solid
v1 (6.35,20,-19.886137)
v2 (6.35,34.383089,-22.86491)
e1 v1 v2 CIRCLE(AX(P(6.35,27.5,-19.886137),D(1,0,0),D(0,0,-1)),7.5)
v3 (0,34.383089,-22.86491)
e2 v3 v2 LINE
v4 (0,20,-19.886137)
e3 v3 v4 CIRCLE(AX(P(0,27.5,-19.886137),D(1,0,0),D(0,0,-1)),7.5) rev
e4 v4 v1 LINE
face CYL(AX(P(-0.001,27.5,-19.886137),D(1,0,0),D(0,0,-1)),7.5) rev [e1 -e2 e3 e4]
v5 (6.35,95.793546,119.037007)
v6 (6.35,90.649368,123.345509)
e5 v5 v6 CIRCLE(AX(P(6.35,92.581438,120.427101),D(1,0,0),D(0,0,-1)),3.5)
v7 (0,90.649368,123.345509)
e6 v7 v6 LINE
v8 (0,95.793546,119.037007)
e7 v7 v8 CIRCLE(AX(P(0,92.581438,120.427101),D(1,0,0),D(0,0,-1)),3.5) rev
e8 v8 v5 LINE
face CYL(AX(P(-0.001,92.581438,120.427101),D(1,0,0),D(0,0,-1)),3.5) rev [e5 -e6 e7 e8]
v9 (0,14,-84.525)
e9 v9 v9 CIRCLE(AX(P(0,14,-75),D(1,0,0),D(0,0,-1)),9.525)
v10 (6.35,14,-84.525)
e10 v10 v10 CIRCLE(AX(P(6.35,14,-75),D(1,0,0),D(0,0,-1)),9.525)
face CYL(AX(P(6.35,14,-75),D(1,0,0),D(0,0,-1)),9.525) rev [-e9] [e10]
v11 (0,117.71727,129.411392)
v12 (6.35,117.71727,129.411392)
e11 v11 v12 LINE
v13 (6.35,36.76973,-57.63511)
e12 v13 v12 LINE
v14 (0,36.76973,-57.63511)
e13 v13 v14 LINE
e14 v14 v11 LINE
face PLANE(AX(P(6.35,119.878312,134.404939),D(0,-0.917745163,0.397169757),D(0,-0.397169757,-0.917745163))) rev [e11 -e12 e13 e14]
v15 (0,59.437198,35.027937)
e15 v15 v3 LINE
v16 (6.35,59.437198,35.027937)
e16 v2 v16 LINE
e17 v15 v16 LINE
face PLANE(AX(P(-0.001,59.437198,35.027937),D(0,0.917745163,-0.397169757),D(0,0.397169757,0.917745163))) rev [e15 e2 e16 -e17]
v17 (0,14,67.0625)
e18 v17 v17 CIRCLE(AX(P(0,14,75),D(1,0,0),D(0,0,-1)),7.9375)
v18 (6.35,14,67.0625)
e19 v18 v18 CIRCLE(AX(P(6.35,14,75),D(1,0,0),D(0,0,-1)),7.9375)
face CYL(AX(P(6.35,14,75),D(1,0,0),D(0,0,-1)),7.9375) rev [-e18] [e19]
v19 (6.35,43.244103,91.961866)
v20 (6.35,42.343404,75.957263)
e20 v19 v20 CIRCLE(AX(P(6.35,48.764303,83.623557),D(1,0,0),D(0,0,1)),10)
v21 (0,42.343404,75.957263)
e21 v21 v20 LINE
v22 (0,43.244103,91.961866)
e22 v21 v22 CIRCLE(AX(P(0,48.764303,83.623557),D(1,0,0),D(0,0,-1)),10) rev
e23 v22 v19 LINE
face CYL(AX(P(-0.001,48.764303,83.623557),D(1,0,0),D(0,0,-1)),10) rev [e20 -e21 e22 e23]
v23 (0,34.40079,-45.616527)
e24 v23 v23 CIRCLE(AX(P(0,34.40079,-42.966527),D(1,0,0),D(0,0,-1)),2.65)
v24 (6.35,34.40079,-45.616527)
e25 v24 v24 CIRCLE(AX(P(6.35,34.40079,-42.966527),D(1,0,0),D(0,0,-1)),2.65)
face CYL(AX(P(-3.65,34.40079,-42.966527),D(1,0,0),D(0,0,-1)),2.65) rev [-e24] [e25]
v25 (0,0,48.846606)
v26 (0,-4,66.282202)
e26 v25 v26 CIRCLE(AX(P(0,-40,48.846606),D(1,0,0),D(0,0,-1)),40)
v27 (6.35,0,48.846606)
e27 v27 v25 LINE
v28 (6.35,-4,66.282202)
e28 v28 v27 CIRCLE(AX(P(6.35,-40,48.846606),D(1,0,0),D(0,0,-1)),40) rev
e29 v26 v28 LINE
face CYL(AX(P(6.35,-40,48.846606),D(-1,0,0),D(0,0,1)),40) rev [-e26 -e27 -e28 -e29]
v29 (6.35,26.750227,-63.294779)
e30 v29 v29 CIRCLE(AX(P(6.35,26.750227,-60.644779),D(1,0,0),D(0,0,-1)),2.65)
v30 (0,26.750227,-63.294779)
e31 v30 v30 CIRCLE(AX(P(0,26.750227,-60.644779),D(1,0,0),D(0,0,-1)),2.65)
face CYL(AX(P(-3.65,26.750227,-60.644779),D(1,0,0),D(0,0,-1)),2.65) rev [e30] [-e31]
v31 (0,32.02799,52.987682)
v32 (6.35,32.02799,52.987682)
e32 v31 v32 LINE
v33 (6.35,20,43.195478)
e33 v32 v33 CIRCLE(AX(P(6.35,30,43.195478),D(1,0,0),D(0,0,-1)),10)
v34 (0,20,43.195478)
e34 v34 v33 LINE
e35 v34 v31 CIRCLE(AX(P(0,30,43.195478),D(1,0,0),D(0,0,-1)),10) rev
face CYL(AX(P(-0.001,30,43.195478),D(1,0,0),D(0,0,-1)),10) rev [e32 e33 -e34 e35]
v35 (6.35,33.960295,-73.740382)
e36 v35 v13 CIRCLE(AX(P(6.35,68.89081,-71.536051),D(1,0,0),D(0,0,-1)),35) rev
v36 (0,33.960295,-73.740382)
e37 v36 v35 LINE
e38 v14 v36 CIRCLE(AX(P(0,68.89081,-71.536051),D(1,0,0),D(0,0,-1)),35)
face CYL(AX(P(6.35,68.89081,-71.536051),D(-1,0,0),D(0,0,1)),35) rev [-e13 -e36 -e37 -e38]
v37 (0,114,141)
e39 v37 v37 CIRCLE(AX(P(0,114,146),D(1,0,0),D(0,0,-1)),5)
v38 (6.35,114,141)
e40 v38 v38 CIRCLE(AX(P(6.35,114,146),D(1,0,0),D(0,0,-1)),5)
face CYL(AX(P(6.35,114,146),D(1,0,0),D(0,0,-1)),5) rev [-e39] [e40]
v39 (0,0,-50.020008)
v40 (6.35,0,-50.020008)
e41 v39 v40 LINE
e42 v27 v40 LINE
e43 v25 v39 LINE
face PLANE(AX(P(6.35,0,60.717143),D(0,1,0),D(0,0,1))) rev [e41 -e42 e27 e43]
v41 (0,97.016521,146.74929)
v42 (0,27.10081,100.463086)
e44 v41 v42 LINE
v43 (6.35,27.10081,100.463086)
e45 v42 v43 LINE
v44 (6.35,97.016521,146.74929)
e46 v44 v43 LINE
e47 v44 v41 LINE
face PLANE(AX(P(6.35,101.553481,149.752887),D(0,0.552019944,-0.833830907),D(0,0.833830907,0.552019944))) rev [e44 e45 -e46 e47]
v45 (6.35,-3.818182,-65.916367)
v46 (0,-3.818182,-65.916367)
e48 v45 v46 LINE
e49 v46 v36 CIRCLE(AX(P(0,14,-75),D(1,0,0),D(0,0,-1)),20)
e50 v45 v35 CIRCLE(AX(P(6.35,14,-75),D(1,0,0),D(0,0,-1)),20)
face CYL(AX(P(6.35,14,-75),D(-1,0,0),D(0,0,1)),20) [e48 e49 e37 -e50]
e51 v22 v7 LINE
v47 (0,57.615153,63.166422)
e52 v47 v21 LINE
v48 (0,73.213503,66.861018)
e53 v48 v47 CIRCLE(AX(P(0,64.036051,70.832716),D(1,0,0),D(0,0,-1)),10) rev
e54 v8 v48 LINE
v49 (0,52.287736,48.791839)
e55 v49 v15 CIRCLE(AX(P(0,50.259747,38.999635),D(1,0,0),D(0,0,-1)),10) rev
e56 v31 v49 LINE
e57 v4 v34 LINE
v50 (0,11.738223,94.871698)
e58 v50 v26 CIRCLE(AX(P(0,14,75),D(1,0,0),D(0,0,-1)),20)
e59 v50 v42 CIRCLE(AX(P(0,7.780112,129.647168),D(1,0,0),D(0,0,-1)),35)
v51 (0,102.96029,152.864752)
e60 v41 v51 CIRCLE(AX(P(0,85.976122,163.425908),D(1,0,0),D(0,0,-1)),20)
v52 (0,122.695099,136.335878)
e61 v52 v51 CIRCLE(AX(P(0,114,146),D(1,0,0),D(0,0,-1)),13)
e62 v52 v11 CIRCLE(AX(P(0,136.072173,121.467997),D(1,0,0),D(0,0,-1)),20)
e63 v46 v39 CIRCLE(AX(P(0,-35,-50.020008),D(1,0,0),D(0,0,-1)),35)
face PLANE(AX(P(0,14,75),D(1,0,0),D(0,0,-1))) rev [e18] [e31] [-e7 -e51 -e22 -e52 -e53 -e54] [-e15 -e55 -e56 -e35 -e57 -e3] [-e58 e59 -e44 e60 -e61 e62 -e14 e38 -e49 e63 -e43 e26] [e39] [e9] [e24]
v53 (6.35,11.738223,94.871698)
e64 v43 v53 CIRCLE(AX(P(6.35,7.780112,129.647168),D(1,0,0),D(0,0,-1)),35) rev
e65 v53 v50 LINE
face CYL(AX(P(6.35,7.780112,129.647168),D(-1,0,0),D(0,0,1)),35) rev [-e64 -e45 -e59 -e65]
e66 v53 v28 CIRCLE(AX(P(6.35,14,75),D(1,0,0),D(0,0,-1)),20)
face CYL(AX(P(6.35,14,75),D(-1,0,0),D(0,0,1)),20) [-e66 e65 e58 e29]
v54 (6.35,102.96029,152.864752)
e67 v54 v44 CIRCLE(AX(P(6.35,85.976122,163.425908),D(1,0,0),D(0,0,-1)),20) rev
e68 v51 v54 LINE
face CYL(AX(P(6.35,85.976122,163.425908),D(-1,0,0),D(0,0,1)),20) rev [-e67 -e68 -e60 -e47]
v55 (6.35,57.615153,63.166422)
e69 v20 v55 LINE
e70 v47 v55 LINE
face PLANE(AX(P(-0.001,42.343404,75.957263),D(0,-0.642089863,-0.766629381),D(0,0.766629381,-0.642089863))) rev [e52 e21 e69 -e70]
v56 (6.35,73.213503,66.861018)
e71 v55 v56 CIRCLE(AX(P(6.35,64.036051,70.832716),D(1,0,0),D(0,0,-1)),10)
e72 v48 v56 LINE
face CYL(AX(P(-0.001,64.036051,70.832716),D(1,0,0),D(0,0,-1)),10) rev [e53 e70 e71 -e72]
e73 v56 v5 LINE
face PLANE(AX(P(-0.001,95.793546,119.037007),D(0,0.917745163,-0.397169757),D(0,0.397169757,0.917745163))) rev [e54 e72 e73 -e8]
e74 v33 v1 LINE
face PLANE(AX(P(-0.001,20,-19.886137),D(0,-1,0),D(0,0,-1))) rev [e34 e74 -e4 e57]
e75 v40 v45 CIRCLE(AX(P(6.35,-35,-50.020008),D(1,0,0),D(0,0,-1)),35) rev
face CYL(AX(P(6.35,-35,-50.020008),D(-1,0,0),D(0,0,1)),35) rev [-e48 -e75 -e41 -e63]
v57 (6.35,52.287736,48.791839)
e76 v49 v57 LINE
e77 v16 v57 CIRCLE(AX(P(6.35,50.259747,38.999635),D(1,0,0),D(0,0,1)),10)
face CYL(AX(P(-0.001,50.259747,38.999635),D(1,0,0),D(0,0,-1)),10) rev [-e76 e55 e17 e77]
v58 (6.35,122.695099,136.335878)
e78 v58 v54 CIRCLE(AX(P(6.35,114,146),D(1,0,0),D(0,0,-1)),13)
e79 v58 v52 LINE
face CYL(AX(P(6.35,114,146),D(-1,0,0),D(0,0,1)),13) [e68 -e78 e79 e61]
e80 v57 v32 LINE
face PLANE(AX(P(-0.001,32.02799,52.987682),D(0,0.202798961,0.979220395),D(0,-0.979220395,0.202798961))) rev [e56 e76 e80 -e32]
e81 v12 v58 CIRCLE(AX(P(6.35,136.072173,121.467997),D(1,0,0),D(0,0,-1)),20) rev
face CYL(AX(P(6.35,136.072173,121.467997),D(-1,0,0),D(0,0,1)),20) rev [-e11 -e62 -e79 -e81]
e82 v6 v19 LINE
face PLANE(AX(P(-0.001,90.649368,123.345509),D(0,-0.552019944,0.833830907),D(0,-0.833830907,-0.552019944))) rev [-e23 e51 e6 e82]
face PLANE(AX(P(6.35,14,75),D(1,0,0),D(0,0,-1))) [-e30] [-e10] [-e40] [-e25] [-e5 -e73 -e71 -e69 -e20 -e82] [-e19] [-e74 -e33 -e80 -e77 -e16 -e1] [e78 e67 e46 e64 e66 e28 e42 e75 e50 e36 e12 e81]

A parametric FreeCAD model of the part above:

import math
import FreeCAD as App
import Part
import Sketcher
from FreeCAD import Vector
Q = App.Units.Quantity


def edges_at(feature, points):
    """Names of the edges that pass closest to the given points."""
    edges = feature.Shape.Edges
    near = lambda p: min(range(len(edges)), key=lambda i: edges[i].distToShape(Part.Vertex(*p))[0])
    return sorted({f"Edge{near(p) + 1}" for p in points})

doc = App.newDocument("Part")
body = doc.addObject("PartDesign::Body", "Body")

# Sketch on YZ plane
sketch1 = body.newObject("Sketcher::SketchObject", "Sketch")
sketch1.AttachmentSupport = (doc.getObject("YZ_Plane"), [""])
sketch1.MapMode = "FlatFace"
sketch1.addGeometry(Part.LineSegment(Vector(0, 60.717143, 0), Vector(0, -60.717143, 0)), False)
sketch1.addGeometry(Part.ArcOfCircle(Part.Circle(Vector(14, -75, 0), Vector(0, 0, 1), 20), math.radians(134.427004), math.radians(382.171631)), False)
sketch1.addGeometry(Part.LineSegment(Vector(32.521151, -67.452354, 0), Vector(119.878312, 134.404939, 0)), False)
sketch1.addGeometry(Part.ArcOfCircle(Part.Circle(Vector(114, 146, 0), Vector(0, 0, 1), 13), math.radians(-63.116502), math.radians(163.220837)), False)
sketch1.addGeometry(Part.LineSegment(Vector(101.553481, 149.752887, 0), Vector(18.181208, 94.558055, 0)), False)
sketch1.addGeometry(Part.ArcOfCircle(Part.Circle(Vector(14, 75, 0), Vector(0, 0, 1), 20), math.radians(77.932704), math.radians(225.572996)), False)
sketch1.addConstraint(Sketcher.Constraint("Coincident", 0, 2, 1, 1))
sketch1.addConstraint(Sketcher.Constraint("Coincident", 1, 2, 2, 1))
sketch1.addConstraint(Sketcher.Constraint("Coincident", 2, 2, 3, 1))
sketch1.addConstraint(Sketcher.Constraint("Coincident", 3, 2, 4, 1))
sketch1.addConstraint(Sketcher.Constraint("Coincident", 4, 2, 5, 1))
sketch1.addConstraint(Sketcher.Constraint("Coincident", 5, 2, 0, 1))
sketch1.addConstraint(Sketcher.Constraint("Vertical", 0))
sketch1.addConstraint(Sketcher.Constraint("Equal", 1, 5))
sketch1.addConstraint(Sketcher.Constraint("Symmetric", 0, 2, 5, 2, -1, 1))
sketch1.addConstraint(Sketcher.Constraint("Vertical", 1, 3, 5, 3))
sketch1.addConstraint(Sketcher.Constraint("Radius", 1, Q("20 mm")))
sketch1.addConstraint(Sketcher.Constraint("Radius", 3, Q("13 mm")))
sketch1.addConstraint(Sketcher.Constraint("DistanceX", -1, 1, 1, 3, Q("14 mm")))
sketch1.addConstraint(Sketcher.Constraint("DistanceY", 1, 3, -1, 1, Q("75 mm")))
sketch1.addConstraint(Sketcher.Constraint("DistanceX", -1, 1, 3, 3, Q("114 mm")))
sketch1.addConstraint(Sketcher.Constraint("DistanceY", -1, 1, 3, 3, Q("146 mm")))
sketch1.addConstraint(Sketcher.Constraint("DistanceX", -1, 1, 1, 2, Q("32.521151 mm")))
sketch1.addConstraint(Sketcher.Constraint("DistanceX", -1, 1, 2, 2, Q("119.878312 mm")))
sketch1.addConstraint(Sketcher.Constraint("DistanceX", -1, 1, 3, 2, Q("101.553481 mm")))
sketch1.addConstraint(Sketcher.Constraint("DistanceX", -1, 1, 4, 2, Q("18.181208 mm")))
pad1 = body.newObject("PartDesign::Pad", "Pad")
pad1.Profile = sketch1
pad1.Length = 6.35

# Sketch on YZ plane
sketch2 = body.newObject("Sketcher::SketchObject", "Sketch001")
sketch2.AttachmentSupport = (doc.getObject("YZ_Plane"), [""])
sketch2.MapMode = "FlatFace"
sketch2.AttachmentOffset = App.Placement(Vector(0, 0, 6.35), App.Rotation())
sketch2.addGeometry(Part.Circle(Vector(14, -75, 0), Vector(0, 0, 1), 9.525), False)
sketch2.addConstraint(Sketcher.Constraint("Diameter", 0, Q("19.05 mm")))
sketch2.addConstraint(Sketcher.Constraint("DistanceX", -1, 1, 0, 3, Q("14 mm")))
sketch2.addConstraint(Sketcher.Constraint("DistanceY", 0, 3, -1, 1, Q("75 mm")))
doc.recompute()
hole = body.newObject("PartDesign::Hole", "Hole")
hole.Profile = sketch2
hole.ThreadType = "None"
hole.Diameter = 19.05
hole.DepthType = "ThroughAll"

# Sketch on YZ plane
sketch3 = body.newObject("Sketcher::SketchObject", "Sketch002")
sketch3.AttachmentSupport = (doc.getObject("YZ_Plane"), [""])
sketch3.MapMode = "FlatFace"
sketch3.AttachmentOffset = App.Placement(Vector(0, 0, 6.35), App.Rotation())
sketch3.addGeometry(Part.Circle(Vector(114, 146, 0), Vector(0, 0, 1), 5), False)
sketch3.addConstraint(Sketcher.Constraint("Diameter", 0, Q("10 mm")))
sketch3.addConstraint(Sketcher.Constraint("DistanceX", -1, 1, 0, 3, Q("114 mm")))
sketch3.addConstraint(Sketcher.Constraint("DistanceY", -1, 1, 0, 3, Q("146 mm")))
doc.recompute()
hole2 = body.newObject("PartDesign::Hole", "Hole001")
hole2.Profile = sketch3
hole2.ThreadType = "None"
hole2.Diameter = 10
hole2.DepthType = "ThroughAll"

# Sketch on YZ plane
sketch4 = body.newObject("Sketcher::SketchObject", "Sketch003")
sketch4.AttachmentSupport = (doc.getObject("YZ_Plane"), [""])
sketch4.MapMode = "FlatFace"
sketch4.AttachmentOffset = App.Placement(Vector(0, 0, 6.35), App.Rotation())
sketch4.addGeometry(Part.Circle(Vector(14, 75, 0), Vector(0, 0, 1), 7.9375), False)
sketch4.addConstraint(Sketcher.Constraint("Diameter", 0, Q("15.875 mm")))
sketch4.addConstraint(Sketcher.Constraint("DistanceX", -1, 1, 0, 3, Q("14 mm")))
sketch4.addConstraint(Sketcher.Constraint("DistanceY", -1, 1, 0, 3, Q("75 mm")))
doc.recompute()
hole3 = body.newObject("PartDesign::Hole", "Hole002")
hole3.Profile = sketch4
hole3.ThreadType = "None"
hole3.Diameter = 15.875
hole3.DepthType = "ThroughAll"

# Sketch on YZ plane
sketch5 = body.newObject("Sketcher::SketchObject", "Sketch004")
sketch5.AttachmentSupport = (doc.getObject("YZ_Plane"), [""])
sketch5.MapMode = "FlatFace"
sketch5.AttachmentOffset = App.Placement(Vector(0, 0, 6.35), App.Rotation())
sketch5.addGeometry(Part.LineSegment(Vector(52.287736, 48.791839, 0), Vector(32.02799, 52.987682, 0)), False)
sketch5.addGeometry(Part.ArcOfCircle(Part.Circle(Vector(30, 43.195478, 0), Vector(0, 0, 1), 10), math.radians(78.299317), math.radians(180)), False)
sketch5.addGeometry(Part.LineSegment(Vector(20, 43.195478, 0), Vector(20, -19.886137, 0)), False)
sketch5.addGeometry(Part.ArcOfCircle(Part.Circle(Vector(27.5, -19.886137, 0), Vector(0, 0, 1), 7.5), math.radians(-180), math.radians(-23.401365)), False)
sketch5.addGeometry(Part.LineSegment(Vector(34.383089, -22.86491, 0), Vector(59.437198, 35.027937, 0)), False)
sketch5.addGeometry(Part.ArcOfCircle(Part.Circle(Vector(50.259747, 38.999635, 0), Vector(0, 0, 1), 10), math.radians(-23.401365), math.radians(78.299317)), False)
sketch5.addConstraint(Sketcher.Constraint("Tangent", 0, 2, 1, 1))
sketch5.addConstraint(Sketcher.Constraint("Tangent", 1, 2, 2, 1))
sketch5.addConstraint(Sketcher.Constraint("Tangent", 2, 2, 3, 1))
sketch5.addConstraint(Sketcher.Constraint("Tangent", 3, 2, 4, 1))
sketch5.addConstraint(Sketcher.Constraint("Tangent", 4, 2, 5, 1))
sketch5.addConstraint(Sketcher.Constraint("Tangent", 5, 2, 0, 1))
sketch5.addConstraint(Sketcher.Constraint("Vertical", 2))
sketch5.addConstraint(Sketcher.Constraint("Equal", 1, 5))
sketch5.addConstraint(Sketcher.Constraint("Radius", 1, Q("10 mm")))
sketch5.addConstraint(Sketcher.Constraint("Radius", 3, Q("7.5 mm")))
sketch5.addConstraint(Sketcher.Constraint("DistanceX", -1, 1, 1, 3, Q("30 mm")))
sketch5.addConstraint(Sketcher.Constraint("DistanceX", -1, 1, 4, 2, Q("59.437198 mm")))
sketch5.addConstraint(Sketcher.Constraint("DistanceY", 4, 2, 5, 2, Q("13.763902 mm")))
sketch5.addConstraint(Sketcher.Constraint("Distance", 0, Q("20.68967 mm")))
sketch5.addConstraint(Sketcher.Constraint("DistanceY", -1, 1, 1, 3, Q("43.195478 mm")))
pocket1 = body.newObject("PartDesign::Pocket", "Pocket")
pocket1.Profile = sketch5
pocket1.Type = "UpToFirst"

# Sketch on YZ plane
sketch6 = body.newObject("Sketcher::SketchObject", "Sketch005")
sketch6.AttachmentSupport = (doc.getObject("YZ_Plane"), [""])
sketch6.MapMode = "FlatFace"
sketch6.AttachmentOffset = App.Placement(Vector(0, 0, 6.35), App.Rotation())
sketch6.addGeometry(Part.LineSegment(Vector(42.343404, 75.957263, 0), Vector(57.615153, 63.166422, 0)), False)
sketch6.addGeometry(Part.ArcOfCircle(Part.Circle(Vector(64.036051, 70.832716, 0), Vector(0, 0, 1), 10), math.radians(-129.947832), math.radians(-23.401365)), False)
sketch6.addGeometry(Part.LineSegment(Vector(73.213503, 66.861018, 0), Vector(95.793546, 119.037007, 0)), False)
sketch6.addGeometry(Part.ArcOfCircle(Part.Circle(Vector(92.581438, 120.427101, 0), Vector(0, 0, 1), 3.5), math.radians(-23.401365), math.radians(123.5057)), False)
sketch6.addGeometry(Part.LineSegment(Vector(90.649368, 123.345509, 0), Vector(43.244103, 91.961866, 0)), False)
sketch6.addGeometry(Part.ArcOfCircle(Part.Circle(Vector(48.764303, 83.623557, 0), Vector(0, 0, 1), 10), math.radians(123.5057), math.radians(230.052168)), False)
sketch6.addConstraint(Sketcher.Constraint("Tangent", 0, 2, 1, 1))
sketch6.addConstraint(Sketcher.Constraint("Tangent", 1, 2, 2, 1))
sketch6.addConstraint(Sketcher.Constraint("Tangent", 2, 2, 3, 1))
sketch6.addConstraint(Sketcher.Constraint("Tangent", 3, 2, 4, 1))
sketch6.addConstraint(Sketcher.Constraint("Tangent", 4, 2, 5, 1))
sketch6.addConstraint(Sketcher.Constraint("Tangent", 5, 2, 0, 1))
sketch6.addConstraint(Sketcher.Constraint("Equal", 1, 5))
sketch6.addConstraint(Sketcher.Constraint("Equal", 2, 4))
sketch6.addConstraint(Sketcher.Constraint("Radius", 1, Q("10 mm")))
sketch6.addConstraint(Sketcher.Constraint("Radius", 3, Q("3.5 mm")))
sketch6.addConstraint(Sketcher.Constraint("DistanceY", -1, 1, 3, 3, Q("120.427101 mm")))
sketch6.addConstraint(Sketcher.Constraint("DistanceX", 0, 2, 1, 3, Q("6.420899 mm")))
sketch6.addConstraint(Sketcher.Constraint("DistanceX", 5, 3, 1, 2, Q("24.4492 mm")))
sketch6.addConstraint(Sketcher.Constraint("DistanceX", 4, 2, 5, 3, Q("5.520199 mm")))
sketch6.addConstraint(Sketcher.Constraint("DistanceX", -1, 1, 1, 3, Q("64.036051 mm")))
pocket2 = body.newObject("PartDesign::Pocket", "Pocket001")
pocket2.Profile = sketch6
pocket2.Type = "UpToFirst"
doc.recompute()

fillet = body.newObject("PartDesign::Fillet", "Fillet")
fillet.Base = (pocket2, edges_at(pocket2, [(3.175, 18.181, 94.558)]))
fillet.Radius = 35
doc.recompute()

fillet2 = body.newObject("PartDesign::Fillet", "Fillet001")
fillet2.Base = (fillet, edges_at(fillet, [(3.175, 32.521, -67.452), (3.175, 0, -60.717)]))
fillet2.Radius = 35
doc.recompute()

fillet3 = body.newObject("PartDesign::Fillet", "Fillet002")
fillet3.Base = (fillet2, edges_at(fillet2, [(3.175, 101.553, 149.753), (3.175, 119.878, 134.405)]))
fillet3.Radius = 20
doc.recompute()

fillet4 = body.newObject("PartDesign::Fillet", "Fillet003")
fillet4.Base = (fillet3, edges_at(fillet3, [(3.175, 0, 60.717)]))
fillet4.Radius = 40

# Sketch on YZ plane
sketch7 = body.newObject("Sketcher::SketchObject", "Sketch006")
sketch7.AttachmentSupport = (doc.getObject("YZ_Plane"), [""])
sketch7.MapMode = "FlatFace"
sketch7.AttachmentOffset = App.Placement(Vector(0, 0, 6.35), App.Rotation())
sketch7.addGeometry(Part.Circle(Vector(26.750227, -60.644779, 0), Vector(0, 0, 1), 2.65), False)
sketch7.addConstraint(Sketcher.Constraint("Diameter", 0, Q("5.3 mm")))
sketch7.addConstraint(Sketcher.Constraint("DistanceY", 0, 3, -1, 1, Q("60.644779 mm")))
sketch7.addConstraint(Sketcher.Constraint("DistanceX", -1, 1, 0, 3, Q("26.750227 mm")))
pocket3 = body.newObject("PartDesign::Pocket", "Pocket002")
pocket3.Profile = sketch7
pocket3.Length = 10

# Sketch on YZ plane
sketch8 = body.newObject("Sketcher::SketchObject", "Sketch007")
sketch8.AttachmentSupport = (doc.getObject("YZ_Plane"), [""])
sketch8.MapMode = "FlatFace"
sketch8.AttachmentOffset = App.Placement(Vector(0, 0, 6.35), App.Rotation())
sketch8.addGeometry(Part.Circle(Vector(34.40079, -42.966527, 0), Vector(0, 0, 1), 2.65), False)
sketch8.addConstraint(Sketcher.Constraint("Diameter", 0, Q("5.3 mm")))
sketch8.addConstraint(Sketcher.Constraint("DistanceX", -1, 1, 0, 3, Q("34.40079 mm")))
sketch8.addConstraint(Sketcher.Constraint("DistanceY", 0, 3, -1, 1, Q("42.966527 mm")))
pocket4 = body.newObject("PartDesign::Pocket", "Pocket003")
pocket4.Profile = sketch8
pocket4.Length = 10

doc.recompute()
